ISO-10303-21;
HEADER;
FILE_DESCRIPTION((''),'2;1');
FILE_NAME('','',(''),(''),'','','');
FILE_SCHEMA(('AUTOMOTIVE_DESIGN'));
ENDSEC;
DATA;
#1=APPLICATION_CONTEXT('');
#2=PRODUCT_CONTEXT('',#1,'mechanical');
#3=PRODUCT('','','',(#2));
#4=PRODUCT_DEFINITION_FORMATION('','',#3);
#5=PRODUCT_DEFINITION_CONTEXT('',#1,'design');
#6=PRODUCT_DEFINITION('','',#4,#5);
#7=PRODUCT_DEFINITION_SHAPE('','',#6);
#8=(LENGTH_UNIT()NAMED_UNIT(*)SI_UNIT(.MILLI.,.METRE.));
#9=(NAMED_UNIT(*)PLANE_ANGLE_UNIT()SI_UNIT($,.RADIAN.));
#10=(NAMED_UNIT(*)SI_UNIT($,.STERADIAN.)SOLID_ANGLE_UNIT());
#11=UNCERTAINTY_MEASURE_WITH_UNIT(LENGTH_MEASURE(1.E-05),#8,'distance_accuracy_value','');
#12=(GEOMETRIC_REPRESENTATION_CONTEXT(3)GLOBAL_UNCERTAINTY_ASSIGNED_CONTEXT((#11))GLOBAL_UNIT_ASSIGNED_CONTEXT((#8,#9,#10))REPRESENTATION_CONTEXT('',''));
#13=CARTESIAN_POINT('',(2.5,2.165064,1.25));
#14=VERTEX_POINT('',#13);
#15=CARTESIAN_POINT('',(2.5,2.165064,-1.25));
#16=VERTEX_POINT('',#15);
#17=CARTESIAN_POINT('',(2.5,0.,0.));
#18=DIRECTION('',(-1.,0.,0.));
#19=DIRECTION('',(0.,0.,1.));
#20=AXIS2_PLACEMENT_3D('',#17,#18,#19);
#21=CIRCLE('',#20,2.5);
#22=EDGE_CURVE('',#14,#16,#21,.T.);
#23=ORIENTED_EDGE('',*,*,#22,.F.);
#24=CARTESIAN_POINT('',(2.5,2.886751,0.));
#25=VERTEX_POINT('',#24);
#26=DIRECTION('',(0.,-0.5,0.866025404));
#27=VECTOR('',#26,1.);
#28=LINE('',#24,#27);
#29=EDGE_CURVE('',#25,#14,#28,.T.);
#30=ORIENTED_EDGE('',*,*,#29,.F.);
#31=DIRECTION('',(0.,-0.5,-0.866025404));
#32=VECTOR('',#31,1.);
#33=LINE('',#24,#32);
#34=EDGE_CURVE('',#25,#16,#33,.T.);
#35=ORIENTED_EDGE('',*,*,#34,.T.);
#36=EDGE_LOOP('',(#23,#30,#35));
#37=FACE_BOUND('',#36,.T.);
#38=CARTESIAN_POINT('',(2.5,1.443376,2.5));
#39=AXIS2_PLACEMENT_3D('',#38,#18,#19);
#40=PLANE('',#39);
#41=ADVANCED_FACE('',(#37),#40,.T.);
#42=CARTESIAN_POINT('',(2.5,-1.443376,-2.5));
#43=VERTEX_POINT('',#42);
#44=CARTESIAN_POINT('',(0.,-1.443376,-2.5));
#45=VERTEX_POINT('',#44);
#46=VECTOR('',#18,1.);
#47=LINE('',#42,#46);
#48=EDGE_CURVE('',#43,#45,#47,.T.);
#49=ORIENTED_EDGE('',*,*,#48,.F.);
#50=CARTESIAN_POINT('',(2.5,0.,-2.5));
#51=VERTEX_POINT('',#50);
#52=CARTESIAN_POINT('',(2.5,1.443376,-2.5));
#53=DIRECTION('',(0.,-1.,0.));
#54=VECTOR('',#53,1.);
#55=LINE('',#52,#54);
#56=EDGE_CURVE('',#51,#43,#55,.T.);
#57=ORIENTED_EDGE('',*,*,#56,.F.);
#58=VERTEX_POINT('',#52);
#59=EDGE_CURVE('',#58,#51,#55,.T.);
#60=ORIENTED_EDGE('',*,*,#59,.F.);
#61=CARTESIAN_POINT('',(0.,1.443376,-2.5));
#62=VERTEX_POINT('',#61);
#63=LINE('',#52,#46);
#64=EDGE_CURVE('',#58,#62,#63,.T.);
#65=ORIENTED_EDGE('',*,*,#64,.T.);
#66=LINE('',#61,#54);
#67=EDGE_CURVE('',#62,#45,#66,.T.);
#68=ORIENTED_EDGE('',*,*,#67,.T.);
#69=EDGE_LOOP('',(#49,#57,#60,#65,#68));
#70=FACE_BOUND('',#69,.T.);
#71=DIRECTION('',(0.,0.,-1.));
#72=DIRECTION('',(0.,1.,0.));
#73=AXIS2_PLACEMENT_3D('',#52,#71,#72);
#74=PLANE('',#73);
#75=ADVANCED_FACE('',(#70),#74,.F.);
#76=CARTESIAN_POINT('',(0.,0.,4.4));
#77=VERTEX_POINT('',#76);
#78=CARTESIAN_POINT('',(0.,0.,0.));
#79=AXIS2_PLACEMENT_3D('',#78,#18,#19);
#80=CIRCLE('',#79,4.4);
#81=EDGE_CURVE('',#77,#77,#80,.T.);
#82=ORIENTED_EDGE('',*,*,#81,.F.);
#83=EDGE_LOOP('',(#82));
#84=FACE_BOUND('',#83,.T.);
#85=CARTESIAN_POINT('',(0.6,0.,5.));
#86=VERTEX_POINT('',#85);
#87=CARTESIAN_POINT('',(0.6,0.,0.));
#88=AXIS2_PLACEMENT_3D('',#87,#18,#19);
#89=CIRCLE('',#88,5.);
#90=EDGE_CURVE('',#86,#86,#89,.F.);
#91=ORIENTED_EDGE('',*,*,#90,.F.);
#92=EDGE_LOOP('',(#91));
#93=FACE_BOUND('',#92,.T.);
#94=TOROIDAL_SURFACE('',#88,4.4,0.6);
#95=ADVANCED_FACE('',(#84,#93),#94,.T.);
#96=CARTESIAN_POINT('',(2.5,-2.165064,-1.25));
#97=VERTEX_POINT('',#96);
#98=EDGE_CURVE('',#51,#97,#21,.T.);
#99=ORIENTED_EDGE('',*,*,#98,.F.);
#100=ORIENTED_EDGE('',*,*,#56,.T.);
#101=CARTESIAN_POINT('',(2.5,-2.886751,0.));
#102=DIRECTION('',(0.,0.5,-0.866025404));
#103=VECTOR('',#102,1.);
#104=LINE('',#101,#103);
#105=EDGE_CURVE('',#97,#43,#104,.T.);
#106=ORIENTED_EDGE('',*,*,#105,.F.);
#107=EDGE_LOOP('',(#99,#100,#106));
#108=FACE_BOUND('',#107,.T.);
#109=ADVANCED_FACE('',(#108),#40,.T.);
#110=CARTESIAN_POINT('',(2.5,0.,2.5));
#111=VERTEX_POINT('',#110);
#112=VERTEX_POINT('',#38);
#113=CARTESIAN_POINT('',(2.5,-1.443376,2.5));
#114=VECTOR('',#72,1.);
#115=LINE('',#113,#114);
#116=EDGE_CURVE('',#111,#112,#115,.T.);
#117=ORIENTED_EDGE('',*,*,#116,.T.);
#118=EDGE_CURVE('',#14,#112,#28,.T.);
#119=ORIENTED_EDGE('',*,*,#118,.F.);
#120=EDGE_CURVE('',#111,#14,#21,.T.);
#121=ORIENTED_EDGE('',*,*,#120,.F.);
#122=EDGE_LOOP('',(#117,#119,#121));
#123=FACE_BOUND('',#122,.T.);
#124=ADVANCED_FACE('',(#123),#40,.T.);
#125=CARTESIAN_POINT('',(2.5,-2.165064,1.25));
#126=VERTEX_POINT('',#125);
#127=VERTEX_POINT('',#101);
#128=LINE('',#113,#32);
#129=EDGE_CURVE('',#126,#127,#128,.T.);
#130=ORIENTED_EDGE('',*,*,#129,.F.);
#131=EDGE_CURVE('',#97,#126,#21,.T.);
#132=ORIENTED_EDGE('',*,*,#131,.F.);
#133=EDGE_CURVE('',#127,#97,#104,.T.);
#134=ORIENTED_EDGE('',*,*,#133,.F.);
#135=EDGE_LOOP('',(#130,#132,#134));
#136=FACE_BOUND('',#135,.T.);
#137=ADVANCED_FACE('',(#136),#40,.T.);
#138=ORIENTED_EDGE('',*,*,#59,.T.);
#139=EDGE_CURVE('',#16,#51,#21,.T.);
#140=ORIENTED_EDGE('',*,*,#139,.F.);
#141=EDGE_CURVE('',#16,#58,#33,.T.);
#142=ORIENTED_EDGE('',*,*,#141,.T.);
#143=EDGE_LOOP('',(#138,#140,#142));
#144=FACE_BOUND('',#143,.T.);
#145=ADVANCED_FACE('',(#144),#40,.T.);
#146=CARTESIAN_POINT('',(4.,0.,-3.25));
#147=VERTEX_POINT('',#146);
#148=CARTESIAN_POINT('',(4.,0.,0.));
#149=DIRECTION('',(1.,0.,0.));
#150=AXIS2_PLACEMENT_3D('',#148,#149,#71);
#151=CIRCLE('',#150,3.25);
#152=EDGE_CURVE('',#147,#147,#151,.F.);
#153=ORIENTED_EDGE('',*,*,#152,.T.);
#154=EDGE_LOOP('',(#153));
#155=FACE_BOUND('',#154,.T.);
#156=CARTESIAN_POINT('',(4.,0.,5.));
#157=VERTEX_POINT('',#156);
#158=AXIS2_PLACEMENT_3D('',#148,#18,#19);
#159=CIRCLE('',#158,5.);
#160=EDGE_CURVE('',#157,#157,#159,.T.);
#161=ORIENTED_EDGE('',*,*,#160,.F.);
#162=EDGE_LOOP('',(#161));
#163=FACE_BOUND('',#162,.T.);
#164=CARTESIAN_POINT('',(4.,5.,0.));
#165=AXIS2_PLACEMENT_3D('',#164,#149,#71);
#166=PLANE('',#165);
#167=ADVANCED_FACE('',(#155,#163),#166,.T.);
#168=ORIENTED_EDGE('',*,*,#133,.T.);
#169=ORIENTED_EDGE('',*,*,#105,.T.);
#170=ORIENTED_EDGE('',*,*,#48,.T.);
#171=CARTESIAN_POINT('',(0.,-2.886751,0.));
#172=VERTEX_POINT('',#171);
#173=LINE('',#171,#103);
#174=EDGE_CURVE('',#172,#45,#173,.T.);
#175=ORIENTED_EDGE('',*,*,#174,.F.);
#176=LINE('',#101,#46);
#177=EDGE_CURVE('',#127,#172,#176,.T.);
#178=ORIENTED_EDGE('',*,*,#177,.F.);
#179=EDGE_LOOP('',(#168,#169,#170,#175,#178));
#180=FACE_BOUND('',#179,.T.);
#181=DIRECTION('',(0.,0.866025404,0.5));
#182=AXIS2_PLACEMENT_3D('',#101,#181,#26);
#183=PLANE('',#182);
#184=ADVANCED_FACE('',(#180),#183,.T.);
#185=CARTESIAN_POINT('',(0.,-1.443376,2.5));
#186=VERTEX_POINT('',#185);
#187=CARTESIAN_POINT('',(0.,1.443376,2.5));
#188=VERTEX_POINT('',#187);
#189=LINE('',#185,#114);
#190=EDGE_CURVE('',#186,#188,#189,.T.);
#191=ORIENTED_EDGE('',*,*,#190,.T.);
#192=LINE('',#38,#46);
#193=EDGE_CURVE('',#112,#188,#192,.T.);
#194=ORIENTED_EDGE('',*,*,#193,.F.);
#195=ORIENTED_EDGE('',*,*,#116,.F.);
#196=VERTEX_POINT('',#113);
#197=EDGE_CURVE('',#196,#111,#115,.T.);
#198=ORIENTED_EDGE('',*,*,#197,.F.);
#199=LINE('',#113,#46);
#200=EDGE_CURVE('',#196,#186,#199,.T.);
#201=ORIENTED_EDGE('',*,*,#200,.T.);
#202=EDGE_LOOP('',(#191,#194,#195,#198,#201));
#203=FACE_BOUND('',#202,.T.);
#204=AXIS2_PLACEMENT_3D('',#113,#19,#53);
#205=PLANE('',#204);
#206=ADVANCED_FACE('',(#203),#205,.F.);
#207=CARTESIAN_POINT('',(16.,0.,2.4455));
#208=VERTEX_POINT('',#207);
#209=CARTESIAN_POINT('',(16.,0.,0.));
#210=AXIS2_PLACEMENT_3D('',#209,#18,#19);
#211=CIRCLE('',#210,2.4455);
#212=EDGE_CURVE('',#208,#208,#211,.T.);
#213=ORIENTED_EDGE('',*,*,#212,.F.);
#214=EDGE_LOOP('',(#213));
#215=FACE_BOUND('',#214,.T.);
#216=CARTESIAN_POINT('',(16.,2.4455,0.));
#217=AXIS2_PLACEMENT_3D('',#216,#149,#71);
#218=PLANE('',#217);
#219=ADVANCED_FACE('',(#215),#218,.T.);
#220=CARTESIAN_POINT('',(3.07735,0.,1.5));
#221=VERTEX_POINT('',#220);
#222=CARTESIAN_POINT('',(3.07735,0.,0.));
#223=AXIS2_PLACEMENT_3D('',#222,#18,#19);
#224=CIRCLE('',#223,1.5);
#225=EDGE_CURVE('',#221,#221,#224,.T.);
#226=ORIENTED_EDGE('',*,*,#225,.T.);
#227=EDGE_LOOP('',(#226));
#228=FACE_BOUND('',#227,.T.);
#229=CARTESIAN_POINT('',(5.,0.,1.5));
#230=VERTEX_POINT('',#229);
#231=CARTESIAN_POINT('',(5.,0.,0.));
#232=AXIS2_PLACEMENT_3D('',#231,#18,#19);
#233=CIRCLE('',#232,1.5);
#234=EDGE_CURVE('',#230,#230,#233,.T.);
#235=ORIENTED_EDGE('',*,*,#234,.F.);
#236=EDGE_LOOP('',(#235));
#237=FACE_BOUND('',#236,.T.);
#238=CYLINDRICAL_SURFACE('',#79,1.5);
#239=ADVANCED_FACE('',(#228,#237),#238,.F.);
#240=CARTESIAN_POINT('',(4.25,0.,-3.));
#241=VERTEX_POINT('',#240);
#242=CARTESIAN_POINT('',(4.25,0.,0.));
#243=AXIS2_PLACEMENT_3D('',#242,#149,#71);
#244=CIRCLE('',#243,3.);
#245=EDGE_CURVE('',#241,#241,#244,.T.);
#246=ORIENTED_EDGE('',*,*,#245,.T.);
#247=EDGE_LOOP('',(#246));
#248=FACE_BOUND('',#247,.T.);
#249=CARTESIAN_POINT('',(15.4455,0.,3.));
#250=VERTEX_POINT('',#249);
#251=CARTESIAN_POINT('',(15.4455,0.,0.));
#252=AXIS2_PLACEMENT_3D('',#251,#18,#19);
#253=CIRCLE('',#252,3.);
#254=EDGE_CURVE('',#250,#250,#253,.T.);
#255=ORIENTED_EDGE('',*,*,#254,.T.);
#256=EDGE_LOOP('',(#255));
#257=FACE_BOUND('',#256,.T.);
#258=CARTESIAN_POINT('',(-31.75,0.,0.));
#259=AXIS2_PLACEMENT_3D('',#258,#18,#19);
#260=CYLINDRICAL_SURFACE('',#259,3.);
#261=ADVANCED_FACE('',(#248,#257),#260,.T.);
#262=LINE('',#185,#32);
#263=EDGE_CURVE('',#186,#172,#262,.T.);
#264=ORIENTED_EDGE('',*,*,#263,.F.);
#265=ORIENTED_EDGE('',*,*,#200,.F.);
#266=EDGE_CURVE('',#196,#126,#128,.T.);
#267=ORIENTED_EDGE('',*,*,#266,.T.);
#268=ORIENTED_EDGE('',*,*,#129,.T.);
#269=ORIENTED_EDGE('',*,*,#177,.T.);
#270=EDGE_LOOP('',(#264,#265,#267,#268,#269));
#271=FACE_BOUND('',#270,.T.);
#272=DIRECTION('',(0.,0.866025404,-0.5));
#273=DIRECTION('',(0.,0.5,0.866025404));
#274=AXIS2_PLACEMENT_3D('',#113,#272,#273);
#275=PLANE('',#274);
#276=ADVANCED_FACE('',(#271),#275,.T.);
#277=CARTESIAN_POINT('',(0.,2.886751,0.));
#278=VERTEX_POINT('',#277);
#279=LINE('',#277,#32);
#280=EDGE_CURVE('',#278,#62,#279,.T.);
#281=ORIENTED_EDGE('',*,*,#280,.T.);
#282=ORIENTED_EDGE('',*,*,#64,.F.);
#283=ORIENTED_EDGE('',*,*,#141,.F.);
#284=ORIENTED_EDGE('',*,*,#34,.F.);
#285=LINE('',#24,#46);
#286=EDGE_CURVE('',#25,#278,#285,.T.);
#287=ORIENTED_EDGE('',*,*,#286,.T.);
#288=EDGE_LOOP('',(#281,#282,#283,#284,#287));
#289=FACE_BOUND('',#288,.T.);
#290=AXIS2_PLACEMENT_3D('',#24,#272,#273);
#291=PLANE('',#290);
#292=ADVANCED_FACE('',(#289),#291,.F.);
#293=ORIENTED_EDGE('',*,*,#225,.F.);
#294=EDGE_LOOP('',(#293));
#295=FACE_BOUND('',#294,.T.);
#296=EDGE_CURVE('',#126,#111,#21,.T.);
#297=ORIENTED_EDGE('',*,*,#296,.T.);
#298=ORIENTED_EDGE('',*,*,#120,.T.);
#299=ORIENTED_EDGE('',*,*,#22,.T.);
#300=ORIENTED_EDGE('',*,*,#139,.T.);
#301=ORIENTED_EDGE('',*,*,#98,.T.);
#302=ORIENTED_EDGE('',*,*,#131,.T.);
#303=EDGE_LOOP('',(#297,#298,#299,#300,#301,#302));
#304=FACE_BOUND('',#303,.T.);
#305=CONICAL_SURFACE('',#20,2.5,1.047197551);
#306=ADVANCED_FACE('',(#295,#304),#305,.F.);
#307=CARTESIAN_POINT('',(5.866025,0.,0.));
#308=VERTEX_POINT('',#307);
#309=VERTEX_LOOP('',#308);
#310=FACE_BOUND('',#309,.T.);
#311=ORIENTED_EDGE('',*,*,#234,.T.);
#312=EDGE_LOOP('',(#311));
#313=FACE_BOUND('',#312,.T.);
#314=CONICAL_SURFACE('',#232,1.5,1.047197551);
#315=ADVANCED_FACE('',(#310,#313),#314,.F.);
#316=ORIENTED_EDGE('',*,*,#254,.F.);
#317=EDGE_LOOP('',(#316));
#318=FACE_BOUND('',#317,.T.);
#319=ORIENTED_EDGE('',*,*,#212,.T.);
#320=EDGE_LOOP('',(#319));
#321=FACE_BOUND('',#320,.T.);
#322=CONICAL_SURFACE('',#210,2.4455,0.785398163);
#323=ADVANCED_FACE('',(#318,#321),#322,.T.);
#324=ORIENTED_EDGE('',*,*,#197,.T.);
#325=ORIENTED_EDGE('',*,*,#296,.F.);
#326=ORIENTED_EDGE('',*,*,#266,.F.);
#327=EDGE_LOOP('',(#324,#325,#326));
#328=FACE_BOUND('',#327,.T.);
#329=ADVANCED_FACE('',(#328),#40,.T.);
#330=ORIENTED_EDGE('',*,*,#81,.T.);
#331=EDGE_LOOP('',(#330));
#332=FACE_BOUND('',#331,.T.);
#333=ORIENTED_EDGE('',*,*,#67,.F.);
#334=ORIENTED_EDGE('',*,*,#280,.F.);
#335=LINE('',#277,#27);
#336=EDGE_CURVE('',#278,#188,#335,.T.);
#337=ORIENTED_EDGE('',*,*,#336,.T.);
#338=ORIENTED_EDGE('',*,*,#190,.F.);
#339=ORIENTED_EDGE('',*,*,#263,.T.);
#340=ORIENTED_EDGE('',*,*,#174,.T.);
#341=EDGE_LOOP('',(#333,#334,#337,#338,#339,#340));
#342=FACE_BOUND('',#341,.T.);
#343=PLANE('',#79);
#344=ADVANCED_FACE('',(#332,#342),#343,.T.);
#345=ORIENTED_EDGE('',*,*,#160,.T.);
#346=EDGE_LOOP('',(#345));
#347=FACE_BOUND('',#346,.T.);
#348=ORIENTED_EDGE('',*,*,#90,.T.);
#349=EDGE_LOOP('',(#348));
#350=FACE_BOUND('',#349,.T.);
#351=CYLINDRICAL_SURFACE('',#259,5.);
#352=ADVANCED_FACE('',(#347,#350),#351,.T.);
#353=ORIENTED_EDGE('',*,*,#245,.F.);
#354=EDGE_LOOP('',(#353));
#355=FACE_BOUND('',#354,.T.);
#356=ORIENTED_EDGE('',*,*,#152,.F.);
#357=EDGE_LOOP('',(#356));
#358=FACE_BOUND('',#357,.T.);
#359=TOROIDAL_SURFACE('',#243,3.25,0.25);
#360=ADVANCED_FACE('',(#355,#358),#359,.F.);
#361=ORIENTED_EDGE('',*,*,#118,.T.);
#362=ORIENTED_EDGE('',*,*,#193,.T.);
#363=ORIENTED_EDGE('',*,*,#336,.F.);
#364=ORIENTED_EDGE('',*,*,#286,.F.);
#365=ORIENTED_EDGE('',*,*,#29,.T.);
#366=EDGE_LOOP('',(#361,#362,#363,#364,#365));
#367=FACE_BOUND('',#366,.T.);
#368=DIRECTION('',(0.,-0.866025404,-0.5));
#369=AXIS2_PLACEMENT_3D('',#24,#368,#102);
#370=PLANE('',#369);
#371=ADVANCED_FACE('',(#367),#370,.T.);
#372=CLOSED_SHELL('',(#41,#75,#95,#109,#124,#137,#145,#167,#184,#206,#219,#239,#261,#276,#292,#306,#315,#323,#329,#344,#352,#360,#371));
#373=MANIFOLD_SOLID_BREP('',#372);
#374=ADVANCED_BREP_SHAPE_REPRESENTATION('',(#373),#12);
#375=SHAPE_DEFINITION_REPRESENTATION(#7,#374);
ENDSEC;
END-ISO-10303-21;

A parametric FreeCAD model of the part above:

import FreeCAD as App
import Part
import Sketcher
Q = App.Units.Quantity


def edges_at(feature, points):
    """Names of the edges that pass closest to the given points."""
    edges = feature.Shape.Edges
    near = lambda p: min(range(len(edges)), key=lambda i: edges[i].distToShape(Part.Vertex(*p))[0])
    return sorted({f"Edge{near(p) + 1}" for p in points})


def add_polygon(sketch, points):
    """Adds a closed chain of lines whose ends are joined by coincident constraints."""
    first, n = sketch.GeometryCount, len(points)
    for a, b in zip(points, points[1:] + points[:1]):
        sketch.addGeometry(Part.LineSegment(App.Vector(*a, 0), App.Vector(*b, 0)), False)
    for i in range(n):
        sketch.addConstraint(Sketcher.Constraint("Coincident", first + i, 2, first + (i + 1) % n, 1))

doc = App.newDocument("Part")
body = doc.addObject("PartDesign::Body", "Body")

# Sketch on XY plane
sketch1 = doc.addObject("Sketcher::SketchObject", "Sketch")
body.addObject(sketch1)
sketch1.AttachmentSupport = (doc.XY_Plane, [""])
sketch1.MapMode = "FlatFace"
add_polygon(sketch1, [(0, 5), (0, 0), (16, 0), (16, 2.4), (15.4, 3), (4, 3), (4, 5)])  # lines 0-6
sketch1.addConstraint([
    Sketcher.Constraint("Vertical", 0),
    Sketcher.Constraint("Horizontal", 1),
    Sketcher.Constraint("Vertical", 2),
    Sketcher.Constraint("Horizontal", 4),
    Sketcher.Constraint("Vertical", 5),
    Sketcher.Constraint("Horizontal", 6),
    Sketcher.Constraint("Coincident", 0, 2, -1, 1),
    Sketcher.Constraint("DistanceX", 1, 1, 1, 2, 16.0),
    Sketcher.Constraint("DistanceX", 6, 2, 6, 1, 4.0),
    Sketcher.Constraint("DistanceY", 0, 2, 0, 1, 5.0),
    Sketcher.Constraint("DistanceY", 5, 1, 5, 2, 2.0),
    Sketcher.Constraint("Angle", 3, Q("135 deg")),
    Sketcher.Constraint("DistanceX", 4, 2, 4, 1, 11.4455),
])
revolution = doc.addObject("PartDesign::Revolution", "Revolution")
body.addObject(revolution)
revolution.Profile = sketch1
revolution.ReferenceAxis = (sketch1, ["H_Axis"])
revolution.Angle = 360
doc.recompute()

fillet = doc.addObject("PartDesign::Fillet", "Fillet")
body.addObject(fillet)
fillet.Base = (revolution, edges_at(revolution, [(4, 0, -3)]))
fillet.Radius = 0.25
doc.recompute()

fillet2 = doc.addObject("PartDesign::Fillet", "Fillet001")
body.addObject(fillet2)
fillet2.Base = (fillet, edges_at(fillet, [(0, 0, -5)]))
fillet2.Radius = 0.6

# Sketch on YZ plane
sketch2 = doc.addObject("Sketcher::SketchObject", "Sketch001")
body.addObject(sketch2)
sketch2.AttachmentSupport = (doc.YZ_Plane, [""])
sketch2.MapMode = "FlatFace"
add_polygon(sketch2, [(2.9, 0), (1.4, -2.5), (-1.4, -2.5), (-2.9, 0), (-1.4, 2.5), (1.4, 2.5)])  # lines 0-5
sketch2.addConstraint([
    Sketcher.Constraint("Horizontal", 1),
    Sketcher.Constraint("Horizontal", 4),
    Sketcher.Constraint("Symmetric", 0, 2, 3, 2, -1, 1),
    Sketcher.Constraint("Symmetric", 2, 2, 5, 2, -1, 1),
    Sketcher.Constraint("PointOnObject", 2, 2, -1),
    Sketcher.Constraint("Parallel", 2, 5),
    Sketcher.Constraint("Vertical", 1, 2, 3, 2),
    Sketcher.Constraint("Angle", 0, Q("-120 deg")),
    Sketcher.Constraint("DistanceY", 1, 2, 3, 2, 5.0),
    Sketcher.Constraint("DistanceX", 1, 2, 1, 1, 2.886751),
])
pocket1 = doc.addObject("PartDesign::Pocket", "Pocket")
body.addObject(pocket1)
pocket1.Profile = sketch2
pocket1.Length = 2.5
pocket1.Reversed = True

# Sketch on XY plane
sketch3 = doc.addObject("Sketcher::SketchObject", "Sketch002")
body.addObject(sketch3)
sketch3.AttachmentSupport = (doc.XY_Plane, [""])
sketch3.MapMode = "FlatFace"
add_polygon(sketch3, [(2.5, 2.5), (0, 2.5), (0, 0), (5.9, 0), (5, 1.5), (3.1, 1.5)])  # lines 0-5
sketch3.addConstraint([
    Sketcher.Constraint("Horizontal", 0),
    Sketcher.Constraint("Vertical", 1),
    Sketcher.Constraint("Horizontal", 2),
    Sketcher.Constraint("Horizontal", 4),
    Sketcher.Constraint("Coincident", 1, 2, -1, 1),
    Sketcher.Constraint("Parallel", 3, 5),
    Sketcher.Constraint("Equal", 0, 1),
    Sketcher.Constraint("Angle", 3, Q("120 deg")),
    Sketcher.Constraint("DistanceX", 0, 2, 0, 1, 2.5),
    Sketcher.Constraint("DistanceX", -1, 1, 3, 2, 5.0),
    Sketcher.Constraint("DistanceY", 3, 2, 0, 2, 1.0),
])
groove = doc.addObject("PartDesign::Groove", "Groove")
body.addObject(groove)
groove.Profile = sketch3
groove.ReferenceAxis = (sketch3, ["H_Axis"])
groove.Angle = 360

doc.recompute()
